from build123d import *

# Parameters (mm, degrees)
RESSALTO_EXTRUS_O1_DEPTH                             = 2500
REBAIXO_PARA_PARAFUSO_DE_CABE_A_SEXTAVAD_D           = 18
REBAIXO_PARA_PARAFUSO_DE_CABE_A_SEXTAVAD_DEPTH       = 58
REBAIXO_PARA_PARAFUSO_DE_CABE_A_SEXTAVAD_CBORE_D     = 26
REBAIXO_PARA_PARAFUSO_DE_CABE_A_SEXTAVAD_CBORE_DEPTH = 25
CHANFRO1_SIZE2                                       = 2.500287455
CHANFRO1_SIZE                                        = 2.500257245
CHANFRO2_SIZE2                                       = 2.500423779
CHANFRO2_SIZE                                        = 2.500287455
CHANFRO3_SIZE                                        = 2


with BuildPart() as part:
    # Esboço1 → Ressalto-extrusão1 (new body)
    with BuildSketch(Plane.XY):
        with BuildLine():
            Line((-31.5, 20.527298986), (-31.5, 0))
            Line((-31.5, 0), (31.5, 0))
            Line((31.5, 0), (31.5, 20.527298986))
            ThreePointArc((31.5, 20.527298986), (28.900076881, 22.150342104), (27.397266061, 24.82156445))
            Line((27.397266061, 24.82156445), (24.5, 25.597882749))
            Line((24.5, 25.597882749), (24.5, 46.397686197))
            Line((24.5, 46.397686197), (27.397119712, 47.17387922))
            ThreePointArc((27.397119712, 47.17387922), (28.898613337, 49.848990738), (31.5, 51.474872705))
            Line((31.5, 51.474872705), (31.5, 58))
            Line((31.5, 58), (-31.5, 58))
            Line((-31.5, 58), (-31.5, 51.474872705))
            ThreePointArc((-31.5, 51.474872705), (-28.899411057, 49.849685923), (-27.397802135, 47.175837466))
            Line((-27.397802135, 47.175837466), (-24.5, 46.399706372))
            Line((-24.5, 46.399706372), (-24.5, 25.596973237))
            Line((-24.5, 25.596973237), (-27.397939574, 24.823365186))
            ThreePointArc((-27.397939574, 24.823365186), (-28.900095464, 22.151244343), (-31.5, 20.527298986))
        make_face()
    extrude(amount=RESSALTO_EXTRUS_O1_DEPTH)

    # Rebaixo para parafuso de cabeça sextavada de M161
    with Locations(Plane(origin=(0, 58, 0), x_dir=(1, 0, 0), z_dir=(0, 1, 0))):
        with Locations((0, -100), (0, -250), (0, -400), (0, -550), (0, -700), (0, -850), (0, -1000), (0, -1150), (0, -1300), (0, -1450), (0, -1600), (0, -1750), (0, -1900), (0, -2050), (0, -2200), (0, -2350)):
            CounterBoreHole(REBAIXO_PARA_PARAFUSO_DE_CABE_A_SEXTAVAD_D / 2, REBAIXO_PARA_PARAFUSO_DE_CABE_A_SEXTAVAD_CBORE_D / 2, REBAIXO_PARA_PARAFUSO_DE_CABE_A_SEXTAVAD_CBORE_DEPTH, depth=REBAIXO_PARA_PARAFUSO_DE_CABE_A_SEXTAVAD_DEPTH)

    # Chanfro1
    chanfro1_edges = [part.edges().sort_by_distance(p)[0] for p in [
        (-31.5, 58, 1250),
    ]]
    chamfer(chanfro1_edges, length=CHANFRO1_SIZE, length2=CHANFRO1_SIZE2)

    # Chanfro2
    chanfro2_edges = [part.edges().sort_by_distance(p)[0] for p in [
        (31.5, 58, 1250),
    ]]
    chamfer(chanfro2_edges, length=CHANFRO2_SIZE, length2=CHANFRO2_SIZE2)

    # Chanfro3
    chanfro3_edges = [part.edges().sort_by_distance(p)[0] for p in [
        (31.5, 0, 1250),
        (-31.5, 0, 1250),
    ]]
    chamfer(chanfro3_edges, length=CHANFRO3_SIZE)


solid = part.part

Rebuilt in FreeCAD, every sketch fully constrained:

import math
import FreeCAD as App
import Part
import Sketcher

V = App.Vector


def edges_at(feature, points):
    """Names of the edges that pass closest to the given points."""
    edges = feature.Shape.Edges
    near = lambda p: min(range(len(edges)), key=lambda i: edges[i].distToShape(Part.Vertex(*p))[0])
    return sorted({f"Edge{near(p) + 1}" for p in points})

doc = App.newDocument("Part")
body = doc.addObject("PartDesign::Body", "Body")

# Sketch on XY plane
sketch1 = doc.addObject("Sketcher::SketchObject", "Sketch")
body.addObject(sketch1)
sketch1.AttachmentSupport = (doc.XY_Plane, [""])
sketch1.MapMode = "FlatFace"
sketch1.addGeometry(Part.LineSegment(V(-31.5, 20.5, 0), V(-31.5, 0, 0)), False)
sketch1.addGeometry(Part.LineSegment(V(-31.5, 0, 0), V(31.5, 0, 0)), False)
sketch1.addGeometry(Part.LineSegment(V(31.5, 0, 0), V(31.5, 20.5, 0)), False)
sketch1.addGeometry(Part.ArcOfCircle(Part.Circle(V(33.4, 26.4, 0), V(0, 0, 1), 6.2), math.radians(-165), math.radians(-108)), False)
sketch1.addGeometry(Part.LineSegment(V(27.4, 24.8, 0), V(24.5, 25.6, 0)), False)
sketch1.addGeometry(Part.LineSegment(V(24.5, 25.6, 0), V(24.5, 46.4, 0)), False)
sketch1.addGeometry(Part.LineSegment(V(24.5, 46.4, 0), V(27.4, 47.2, 0)), False)
sketch1.addGeometry(Part.ArcOfCircle(Part.Circle(V(33.4, 45.6, 0), V(0, 0, 1), 6.2), math.radians(108), math.radians(165)), False)
sketch1.addGeometry(Part.LineSegment(V(31.5, 51.5, 0), V(31.5, 58, 0)), False)
sketch1.addGeometry(Part.LineSegment(V(31.5, 58, 0), V(-31.5, 58, 0)), False)
sketch1.addGeometry(Part.LineSegment(V(-31.5, 58, 0), V(-31.5, 51.5, 0)), False)
sketch1.addGeometry(Part.ArcOfCircle(Part.Circle(V(-33.4, 45.6, 0), V(0, 0, 1), 6.2), math.radians(15), math.radians(72)), False)
sketch1.addGeometry(Part.LineSegment(V(-27.4, 47.2, 0), V(-24.5, 46.4, 0)), False)
sketch1.addGeometry(Part.LineSegment(V(-24.5, 46.4, 0), V(-24.5, 25.6, 0)), False)
sketch1.addGeometry(Part.LineSegment(V(-24.5, 25.6, 0), V(-27.4, 24.8, 0)), False)
sketch1.addGeometry(Part.ArcOfCircle(Part.Circle(V(-33.4, 26.4, 0), V(0, 0, 1), 6.2), math.radians(-72), math.radians(-15)), False)
sketch1.addConstraint(Sketcher.Constraint("Coincident", 0, 2, 1, 1))
sketch1.addConstraint(Sketcher.Constraint("Coincident", 1, 2, 2, 1))
sketch1.addConstraint(Sketcher.Constraint("Coincident", 2, 2, 3, 2))
sketch1.addConstraint(Sketcher.Constraint("Coincident", 3, 1, 4, 1))
sketch1.addConstraint(Sketcher.Constraint("Coincident", 4, 2, 5, 1))
sketch1.addConstraint(Sketcher.Constraint("Coincident", 5, 2, 6, 1))
sketch1.addConstraint(Sketcher.Constraint("Coincident", 6, 2, 7, 2))
sketch1.addConstraint(Sketcher.Constraint("Coincident", 7, 1, 8, 1))
sketch1.addConstraint(Sketcher.Constraint("Coincident", 8, 2, 9, 1))
sketch1.addConstraint(Sketcher.Constraint("Coincident", 9, 2, 10, 1))
sketch1.addConstraint(Sketcher.Constraint("Coincident", 10, 2, 11, 2))
sketch1.addConstraint(Sketcher.Constraint("Coincident", 11, 1, 12, 1))
sketch1.addConstraint(Sketcher.Constraint("Coincident", 12, 2, 13, 1))
sketch1.addConstraint(Sketcher.Constraint("Coincident", 13, 2, 14, 1))
sketch1.addConstraint(Sketcher.Constraint("Coincident", 14, 2, 15, 2))
sketch1.addConstraint(Sketcher.Constraint("Coincident", 15, 1, 0, 1))
sketch1.addConstraint(Sketcher.Constraint("Vertical", 0))
sketch1.addConstraint(Sketcher.Constraint("Horizontal", 1))
sketch1.addConstraint(Sketcher.Constraint("Vertical", 2))
sketch1.addConstraint(Sketcher.Constraint("Vertical", 5))
sketch1.addConstraint(Sketcher.Constraint("Vertical", 8))
sketch1.addConstraint(Sketcher.Constraint("Horizontal", 9))
sketch1.addConstraint(Sketcher.Constraint("Vertical", 10))
sketch1.addConstraint(Sketcher.Constraint("Vertical", 13))
sketch1.addConstraint(Sketcher.Constraint("Equal", 3, 11))
sketch1.addConstraint(Sketcher.Constraint("Equal", 11, 15))
sketch1.addConstraint(Sketcher.Constraint("Symmetric", 0, 2, 1, 2, -1, 1))
sketch1.addConstraint(Sketcher.Constraint("Symmetric", 7, 1, 10, 2, -2))
sketch1.addConstraint(Sketcher.Constraint("Horizontal", 7, 3, 11, 3))
sketch1.addConstraint(Sketcher.Constraint("Horizontal", 2, 2, 15, 1))
sketch1.addConstraint(Sketcher.Constraint("Vertical", 2, 2, 7, 1))
sketch1.addConstraint(Sketcher.Constraint("DistanceX", 1, 1, 1, 2, 63.0))
sketch1.addConstraint(Sketcher.Constraint("DistanceY", -1, 1, 8, 2, 58.0))
sketch1.addConstraint(Sketcher.Constraint("DistanceX", 4, 2, 2, 2, 7.0))
sketch1.addConstraint(Sketcher.Constraint("DistanceX", 10, 2, 12, 2, 7.0))
sketch1.addConstraint(Sketcher.Constraint("Radius", 3, 6.190992))
sketch1.addConstraint(Sketcher.Constraint("Radius", 7, 6.190922))
sketch1.addConstraint(Sketcher.Constraint("DistanceY", 0, 2, 0, 1, 20.527299))
sketch1.addConstraint(Sketcher.Constraint("DistanceX", 11, 3, 3, 3, 66.7549))
sketch1.addConstraint(Sketcher.Constraint("DistanceY", 14, 2, 15, 3, 1.603302))
sketch1.addConstraint(Sketcher.Constraint("Distance", 4, 2.99947))
sketch1.addConstraint(Sketcher.Constraint("Distance", 12, 2.999939))
sketch1.addConstraint(Sketcher.Constraint("Distance", 14, 2.99942))
sketch1.addConstraint(Sketcher.Constraint("DistanceY", 5, 1, 5, 2, 20.799803))
sketch1.addConstraint(Sketcher.Constraint("DistanceY", 8, 1, 8, 2, 6.525127))
sketch1.addConstraint(Sketcher.Constraint("DistanceY", 13, 2, 13, 1, 20.802733))
sketch1.addConstraint(Sketcher.Constraint("DistanceX", -1, 1, 3, 3, 33.376458))
sketch1.addConstraint(Sketcher.Constraint("DistanceX", -1, 1, 6, 2, 27.39712))
sketch1.addConstraint(Sketcher.Constraint("DistanceX", 14, 2, -1, 1, 27.39794))
sketch1.addConstraint(Sketcher.Constraint("DistanceX", 3, 1, 3, 3, 5.979192))
pad1 = doc.addObject("PartDesign::Pad", "Pad")
body.addObject(pad1)
pad1.Profile = sketch1
pad1.Length = 2500

# Sketch on XZ plane
sketch2 = doc.addObject("Sketcher::SketchObject", "Sketch001")
body.addObject(sketch2)
sketch2.AttachmentSupport = (doc.XZ_Plane, [""])
sketch2.MapMode = "FlatFace"
sketch2.AttachmentOffset = App.Placement(V(0, 0, -58), App.Rotation())
sketch2.addGeometry(Part.Circle(V(0, 100, 0), V(0, 0, 1), 9), False)
sketch2.addGeometry(Part.Circle(V(0, 250, 0), V(0, 0, 1), 9), False)
sketch2.addGeometry(Part.Circle(V(0, 400, 0), V(0, 0, 1), 9), False)
sketch2.addGeometry(Part.Circle(V(0, 550, 0), V(0, 0, 1), 9), False)
sketch2.addGeometry(Part.Circle(V(0, 700, 0), V(0, 0, 1), 9), False)
sketch2.addGeometry(Part.Circle(V(0, 850, 0), V(0, 0, 1), 9), False)
sketch2.addGeometry(Part.Circle(V(0, 1000, 0), V(0, 0, 1), 9), False)
sketch2.addGeometry(Part.Circle(V(0, 1150, 0), V(0, 0, 1), 9), False)
sketch2.addGeometry(Part.Circle(V(0, 1300, 0), V(0, 0, 1), 9), False)
sketch2.addGeometry(Part.Circle(V(0, 1450, 0), V(0, 0, 1), 9), False)
sketch2.addGeometry(Part.Circle(V(0, 1600, 0), V(0, 0, 1), 9), False)
sketch2.addGeometry(Part.Circle(V(0, 1750, 0), V(0, 0, 1), 9), False)
sketch2.addGeometry(Part.Circle(V(0, 1900, 0), V(0, 0, 1), 9), False)
sketch2.addGeometry(Part.Circle(V(0, 2050, 0), V(0, 0, 1), 9), False)
sketch2.addGeometry(Part.Circle(V(0, 2200, 0), V(0, 0, 1), 9), False)
sketch2.addGeometry(Part.Circle(V(0, 2350, 0), V(0, 0, 1), 9), False)
sketch2.addConstraint(Sketcher.Constraint("Equal", 0, 1))
sketch2.addConstraint(Sketcher.Constraint("Equal", 1, 2))
sketch2.addConstraint(Sketcher.Constraint("Equal", 2, 3))
sketch2.addConstraint(Sketcher.Constraint("Equal", 3, 4))
sketch2.addConstraint(Sketcher.Constraint("Equal", 4, 5))
sketch2.addConstraint(Sketcher.Constraint("Equal", 5, 6))
sketch2.addConstraint(Sketcher.Constraint("Equal", 6, 7))
sketch2.addConstraint(Sketcher.Constraint("Equal", 7, 8))
sketch2.addConstraint(Sketcher.Constraint("Equal", 8, 9))
sketch2.addConstraint(Sketcher.Constraint("Equal", 9, 10))
sketch2.addConstraint(Sketcher.Constraint("Equal", 10, 11))
sketch2.addConstraint(Sketcher.Constraint("Equal", 11, 12))
sketch2.addConstraint(Sketcher.Constraint("Equal", 12, 13))
sketch2.addConstraint(Sketcher.Constraint("Equal", 13, 14))
sketch2.addConstraint(Sketcher.Constraint("Equal", 14, 15))
sketch2.addConstraint(Sketcher.Constraint("PointOnObject", 0, 3, -2))
sketch2.addConstraint(Sketcher.Constraint("PointOnObject", 1, 3, -2))
sketch2.addConstraint(Sketcher.Constraint("PointOnObject", 2, 3, -2))
sketch2.addConstraint(Sketcher.Constraint("PointOnObject", 3, 3, -2))
sketch2.addConstraint(Sketcher.Constraint("PointOnObject", 4, 3, -2))
sketch2.addConstraint(Sketcher.Constraint("PointOnObject", 5, 3, -2))
sketch2.addConstraint(Sketcher.Constraint("PointOnObject", 6, 3, -2))
sketch2.addConstraint(Sketcher.Constraint("PointOnObject", 7, 3, -2))
sketch2.addConstraint(Sketcher.Constraint("PointOnObject", 8, 3, -2))
sketch2.addConstraint(Sketcher.Constraint("PointOnObject", 9, 3, -2))
sketch2.addConstraint(Sketcher.Constraint("PointOnObject", 10, 3, -2))
sketch2.addConstraint(Sketcher.Constraint("PointOnObject", 11, 3, -2))
sketch2.addConstraint(Sketcher.Constraint("PointOnObject", 12, 3, -2))
sketch2.addConstraint(Sketcher.Constraint("PointOnObject", 13, 3, -2))
sketch2.addConstraint(Sketcher.Constraint("PointOnObject", 14, 3, -2))
sketch2.addConstraint(Sketcher.Constraint("PointOnObject", 15, 3, -2))
sketch2.addConstraint(Sketcher.Constraint("Diameter", 0, 18.0))
sketch2.addConstraint(Sketcher.Constraint("DistanceY", -1, 1, 0, 3, 100.0))
sketch2.addConstraint(Sketcher.Constraint("DistanceY", -1, 1, 1, 3, 250.0))
sketch2.addConstraint(Sketcher.Constraint("DistanceY", -1, 1, 2, 3, 400.0))
sketch2.addConstraint(Sketcher.Constraint("DistanceY", -1, 1, 3, 3, 550.0))
sketch2.addConstraint(Sketcher.Constraint("DistanceY", -1, 1, 4, 3, 700.0))
sketch2.addConstraint(Sketcher.Constraint("DistanceY", -1, 1, 5, 3, 850.0))
sketch2.addConstraint(Sketcher.Constraint("DistanceY", -1, 1, 6, 3, 1000.0))
sketch2.addConstraint(Sketcher.Constraint("DistanceY", -1, 1, 7, 3, 1150.0))
sketch2.addConstraint(Sketcher.Constraint("DistanceY", -1, 1, 8, 3, 1300.0))
sketch2.addConstraint(Sketcher.Constraint("DistanceY", -1, 1, 9, 3, 1450.0))
sketch2.addConstraint(Sketcher.Constraint("DistanceY", -1, 1, 10, 3, 1600.0))
sketch2.addConstraint(Sketcher.Constraint("DistanceY", -1, 1, 11, 3, 1750.0))
sketch2.addConstraint(Sketcher.Constraint("DistanceY", -1, 1, 12, 3, 1900.0))
sketch2.addConstraint(Sketcher.Constraint("DistanceY", -1, 1, 13, 3, 2050.0))
sketch2.addConstraint(Sketcher.Constraint("DistanceY", -1, 1, 14, 3, 2200.0))
sketch2.addConstraint(Sketcher.Constraint("DistanceY", -1, 1, 15, 3, 2350.0))
doc.recompute()
hole = doc.addObject("PartDesign::Hole", "Hole")
body.addObject(hole)
hole.Profile = sketch2
hole.ThreadType = "None"
hole.Diameter = 18
hole.DepthType = "Dimension"
hole.Depth = 58
hole.DrillPoint = "Flat"
hole.HoleCutType = "Counterbore"
hole.HoleCutDiameter = 26
hole.HoleCutDepth = 25
hole.Reversed = True
doc.recompute()

chamfer = doc.addObject("PartDesign::Chamfer", "Chamfer")
body.addObject(chamfer)
chamfer.Base = (hole, edges_at(hole, [(-31.5, 58, 1250)]))
chamfer.ChamferType = "Two distances"
chamfer.Size = 2.500257
chamfer.Size2 = 2.500287
doc.recompute()

chamfer2 = doc.addObject("PartDesign::Chamfer", "Chamfer001")
body.addObject(chamfer2)
chamfer2.Base = (chamfer, edges_at(chamfer, [(31.5, 58, 1250)]))
chamfer2.ChamferType = "Two distances"
chamfer2.Size = 2.500287
chamfer2.Size2 = 2.500424
doc.recompute()

chamfer3 = doc.addObject("PartDesign::Chamfer", "Chamfer002")
body.addObject(chamfer3)
chamfer3.Base = (chamfer2, edges_at(chamfer2, [(31.5, 0, 1250), (-31.5, 0, 1250)]))
chamfer3.Size = 2

doc.recompute()
